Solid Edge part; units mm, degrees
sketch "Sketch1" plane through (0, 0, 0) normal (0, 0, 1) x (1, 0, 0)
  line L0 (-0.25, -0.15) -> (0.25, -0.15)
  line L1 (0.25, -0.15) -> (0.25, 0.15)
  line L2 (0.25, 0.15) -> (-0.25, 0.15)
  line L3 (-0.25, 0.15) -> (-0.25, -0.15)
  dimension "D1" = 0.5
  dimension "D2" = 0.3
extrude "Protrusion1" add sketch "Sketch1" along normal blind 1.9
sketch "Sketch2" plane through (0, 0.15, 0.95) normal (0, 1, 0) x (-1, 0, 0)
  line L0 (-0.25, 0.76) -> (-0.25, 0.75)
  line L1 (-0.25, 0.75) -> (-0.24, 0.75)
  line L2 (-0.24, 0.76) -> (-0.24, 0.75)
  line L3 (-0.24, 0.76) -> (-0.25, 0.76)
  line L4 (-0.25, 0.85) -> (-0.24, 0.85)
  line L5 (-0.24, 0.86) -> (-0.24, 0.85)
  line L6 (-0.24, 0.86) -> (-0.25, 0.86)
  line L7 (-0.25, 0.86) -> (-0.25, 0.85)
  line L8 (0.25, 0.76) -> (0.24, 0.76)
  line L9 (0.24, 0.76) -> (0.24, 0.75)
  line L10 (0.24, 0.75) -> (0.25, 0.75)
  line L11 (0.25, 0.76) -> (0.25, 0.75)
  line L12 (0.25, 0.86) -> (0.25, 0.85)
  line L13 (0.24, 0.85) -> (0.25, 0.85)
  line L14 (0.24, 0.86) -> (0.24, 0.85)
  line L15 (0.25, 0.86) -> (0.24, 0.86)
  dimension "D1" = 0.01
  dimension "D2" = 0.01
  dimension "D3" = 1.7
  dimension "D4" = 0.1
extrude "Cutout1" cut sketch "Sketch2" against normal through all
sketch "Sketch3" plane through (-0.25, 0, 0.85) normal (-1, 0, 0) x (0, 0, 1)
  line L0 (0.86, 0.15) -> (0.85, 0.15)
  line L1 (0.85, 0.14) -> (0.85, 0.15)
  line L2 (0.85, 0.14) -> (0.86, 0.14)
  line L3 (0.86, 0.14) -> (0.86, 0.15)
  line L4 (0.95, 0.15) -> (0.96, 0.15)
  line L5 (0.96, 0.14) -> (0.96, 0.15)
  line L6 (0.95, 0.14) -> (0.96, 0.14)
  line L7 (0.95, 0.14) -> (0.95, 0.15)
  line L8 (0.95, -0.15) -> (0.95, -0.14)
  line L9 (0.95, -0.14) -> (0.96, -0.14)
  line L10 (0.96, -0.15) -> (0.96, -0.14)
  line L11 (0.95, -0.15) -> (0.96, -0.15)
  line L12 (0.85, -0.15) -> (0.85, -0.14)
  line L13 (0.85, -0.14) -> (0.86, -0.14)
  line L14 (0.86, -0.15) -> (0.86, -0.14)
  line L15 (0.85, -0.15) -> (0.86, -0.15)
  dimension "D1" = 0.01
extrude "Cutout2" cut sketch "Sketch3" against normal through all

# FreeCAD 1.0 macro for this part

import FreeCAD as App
import Part
import Sketcher
Q = App.Units.Quantity


def add_polygon(sketch, points):
    """Adds a closed chain of lines whose ends are joined by coincident constraints."""
    first, n = sketch.GeometryCount, len(points)
    for a, b in zip(points, points[1:] + points[:1]):
        sketch.addGeometry(Part.LineSegment(App.Vector(*a, 0), App.Vector(*b, 0)), False)
    for i in range(n):
        sketch.addConstraint(Sketcher.Constraint("Coincident", first + i, 2, first + (i + 1) % n, 1))

doc = App.newDocument("Part")
body = doc.addObject("PartDesign::Body", "Body")

# Sketch on XY plane
sketch1 = body.newObject("Sketcher::SketchObject", "Sketch")
sketch1.AttachmentSupport = (doc.getObject("XY_Plane"), [""])
sketch1.MapMode = "FlatFace"
add_polygon(sketch1, [(-0.25, 0.15), (-0.25, -0.15), (0.25, -0.15), (0.25, 0.15)])  # lines 0-3
sketch1.addConstraint([
    Sketcher.Constraint("Vertical", 0),
    Sketcher.Constraint("Horizontal", 1),
    Sketcher.Constraint("Vertical", 2),
    Sketcher.Constraint("Horizontal", 3),
    Sketcher.Constraint("Symmetric", 0, 2, 2, 2, -1, 1),
    Sketcher.Constraint("DistanceX", 0, 2, -1, 1, Q("0.25 mm")),
    Sketcher.Constraint("DistanceY", 0, 2, 0, 1, Q("0.3 mm")),
])
pad1 = body.newObject("PartDesign::Pad", "Pad")
pad1.Profile = sketch1
pad1.Length = 1.9

# Sketch on XZ plane
sketch2 = body.newObject("Sketcher::SketchObject", "Sketch001")
sketch2.AttachmentSupport = (doc.getObject("XZ_Plane"), [""])
sketch2.MapMode = "FlatFace"
sketch2.AttachmentOffset = App.Placement(App.Vector(0, 0, -0.15), App.Rotation())
add_polygon(sketch2, [(0.24, 1.71), (0.25, 1.71), (0.25, 1.7), (0.24, 1.7)])  # lines 0-3
add_polygon(sketch2, [(0.25, 1.81), (0.25, 1.8), (0.24, 1.8), (0.24, 1.81)])  # lines 4-7
add_polygon(sketch2, [(-0.25, 1.7), (-0.25, 1.71), (-0.24, 1.71), (-0.24, 1.7)])  # lines 8-11
add_polygon(sketch2, [(-0.25, 1.8), (-0.25, 1.81), (-0.24, 1.81), (-0.24, 1.8)])  # lines 12-15
sketch2.addConstraint([
    Sketcher.Constraint("Horizontal", 0),
    Sketcher.Constraint("Vertical", 1),
    Sketcher.Constraint("Horizontal", 2),
    Sketcher.Constraint("Vertical", 3),
    Sketcher.Constraint("Vertical", 4),
    Sketcher.Constraint("Horizontal", 5),
    Sketcher.Constraint("Vertical", 6),
    Sketcher.Constraint("Horizontal", 7),
    Sketcher.Constraint("Vertical", 8),
    Sketcher.Constraint("Horizontal", 9),
    Sketcher.Constraint("Vertical", 10),
    Sketcher.Constraint("Horizontal", 11),
    Sketcher.Constraint("Vertical", 12),
    Sketcher.Constraint("Horizontal", 13),
    Sketcher.Constraint("Vertical", 14),
    Sketcher.Constraint("Horizontal", 15),
    Sketcher.Constraint("Symmetric", 0, 2, 8, 2, -2),
    Sketcher.Constraint("Symmetric", 2, 2, 10, 2, -2),
    Sketcher.Constraint("Symmetric", 7, 2, 12, 2, -2),
    Sketcher.Constraint("Symmetric", 5, 2, 14, 2, -2),
    Sketcher.Constraint("Vertical", 1, 2, 4, 2),
    Sketcher.Constraint("Vertical", 3, 2, 5, 2),
    Sketcher.Constraint("Equal", 15, 1),
    Sketcher.Constraint("Equal", 3, 4),
    Sketcher.Constraint("DistanceX", -1, 1, 0, 2, Q("0.25 mm")),
    Sketcher.Constraint("DistanceX", -1, 1, 2, 2, Q("0.24 mm")),
    Sketcher.Constraint("DistanceY", -1, 1, 1, 2, Q("1.7 mm")),
    Sketcher.Constraint("DistanceY", -1, 1, 4, 2, Q("1.8 mm")),
])
pocket1 = body.newObject("PartDesign::Pocket", "Pocket")
pocket1.Profile = sketch2
pocket1.Type = "ThroughAll"
pocket1.Reversed = True

# Sketch on YZ plane
sketch3 = body.newObject("Sketcher::SketchObject", "Sketch002")
sketch3.AttachmentSupport = (doc.getObject("YZ_Plane"), [""])
sketch3.MapMode = "FlatFace"
sketch3.AttachmentOffset = App.Placement(App.Vector(0, 0, -0.25), App.Rotation())
add_polygon(sketch3, [(0.14, 1.71), (0.15, 1.71), (0.15, 1.7), (0.14, 1.7)])  # lines 0-3
add_polygon(sketch3, [(0.15, 1.81), (0.15, 1.8), (0.14, 1.8), (0.14, 1.81)])  # lines 4-7
add_polygon(sketch3, [(-0.14, 1.8), (-0.15, 1.8), (-0.15, 1.81), (-0.14, 1.81)])  # lines 8-11
add_polygon(sketch3, [(-0.14, 1.7), (-0.15, 1.7), (-0.15, 1.71), (-0.14, 1.71)])  # lines 12-15
sketch3.addConstraint([
    Sketcher.Constraint("Horizontal", 0),
    Sketcher.Constraint("Vertical", 1),
    Sketcher.Constraint("Horizontal", 2),
    Sketcher.Constraint("Vertical", 3),
    Sketcher.Constraint("Vertical", 4),
    Sketcher.Constraint("Horizontal", 5),
    Sketcher.Constraint("Vertical", 6),
    Sketcher.Constraint("Horizontal", 7),
    Sketcher.Constraint("Horizontal", 8),
    Sketcher.Constraint("Vertical", 9),
    Sketcher.Constraint("Horizontal", 10),
    Sketcher.Constraint("Vertical", 11),
    Sketcher.Constraint("Horizontal", 12),
    Sketcher.Constraint("Vertical", 13),
    Sketcher.Constraint("Horizontal", 14),
    Sketcher.Constraint("Vertical", 15),
    Sketcher.Constraint("Symmetric", 4, 2, 8, 2, -2),
    Sketcher.Constraint("Symmetric", 6, 2, 10, 2, -2),
    Sketcher.Constraint("Symmetric", 1, 2, 12, 2, -2),
    Sketcher.Constraint("Symmetric", 3, 2, 14, 2, -2),
    Sketcher.Constraint("Vertical", 1, 2, 4, 2),
    Sketcher.Constraint("Vertical", 3, 2, 5, 2),
    Sketcher.Constraint("Equal", 14, 1),
    Sketcher.Constraint("Equal", 3, 4),
    Sketcher.Constraint("DistanceX", 0, 1, 0, 2, Q("0.01 mm")),
    Sketcher.Constraint("DistanceY", -1, 1, 1, 2, Q("1.7 mm")),
    Sketcher.Constraint("DistanceY", -1, 1, 4, 2, Q("1.8 mm")),
    Sketcher.Constraint("DistanceX", 8, 2, 4, 2, Q("0.3 mm")),
])
pocket2 = body.newObject("PartDesign::Pocket", "Pocket001")
pocket2.Profile = sketch3
pocket2.Type = "ThroughAll"
pocket2.Reversed = True

doc.recompute()
